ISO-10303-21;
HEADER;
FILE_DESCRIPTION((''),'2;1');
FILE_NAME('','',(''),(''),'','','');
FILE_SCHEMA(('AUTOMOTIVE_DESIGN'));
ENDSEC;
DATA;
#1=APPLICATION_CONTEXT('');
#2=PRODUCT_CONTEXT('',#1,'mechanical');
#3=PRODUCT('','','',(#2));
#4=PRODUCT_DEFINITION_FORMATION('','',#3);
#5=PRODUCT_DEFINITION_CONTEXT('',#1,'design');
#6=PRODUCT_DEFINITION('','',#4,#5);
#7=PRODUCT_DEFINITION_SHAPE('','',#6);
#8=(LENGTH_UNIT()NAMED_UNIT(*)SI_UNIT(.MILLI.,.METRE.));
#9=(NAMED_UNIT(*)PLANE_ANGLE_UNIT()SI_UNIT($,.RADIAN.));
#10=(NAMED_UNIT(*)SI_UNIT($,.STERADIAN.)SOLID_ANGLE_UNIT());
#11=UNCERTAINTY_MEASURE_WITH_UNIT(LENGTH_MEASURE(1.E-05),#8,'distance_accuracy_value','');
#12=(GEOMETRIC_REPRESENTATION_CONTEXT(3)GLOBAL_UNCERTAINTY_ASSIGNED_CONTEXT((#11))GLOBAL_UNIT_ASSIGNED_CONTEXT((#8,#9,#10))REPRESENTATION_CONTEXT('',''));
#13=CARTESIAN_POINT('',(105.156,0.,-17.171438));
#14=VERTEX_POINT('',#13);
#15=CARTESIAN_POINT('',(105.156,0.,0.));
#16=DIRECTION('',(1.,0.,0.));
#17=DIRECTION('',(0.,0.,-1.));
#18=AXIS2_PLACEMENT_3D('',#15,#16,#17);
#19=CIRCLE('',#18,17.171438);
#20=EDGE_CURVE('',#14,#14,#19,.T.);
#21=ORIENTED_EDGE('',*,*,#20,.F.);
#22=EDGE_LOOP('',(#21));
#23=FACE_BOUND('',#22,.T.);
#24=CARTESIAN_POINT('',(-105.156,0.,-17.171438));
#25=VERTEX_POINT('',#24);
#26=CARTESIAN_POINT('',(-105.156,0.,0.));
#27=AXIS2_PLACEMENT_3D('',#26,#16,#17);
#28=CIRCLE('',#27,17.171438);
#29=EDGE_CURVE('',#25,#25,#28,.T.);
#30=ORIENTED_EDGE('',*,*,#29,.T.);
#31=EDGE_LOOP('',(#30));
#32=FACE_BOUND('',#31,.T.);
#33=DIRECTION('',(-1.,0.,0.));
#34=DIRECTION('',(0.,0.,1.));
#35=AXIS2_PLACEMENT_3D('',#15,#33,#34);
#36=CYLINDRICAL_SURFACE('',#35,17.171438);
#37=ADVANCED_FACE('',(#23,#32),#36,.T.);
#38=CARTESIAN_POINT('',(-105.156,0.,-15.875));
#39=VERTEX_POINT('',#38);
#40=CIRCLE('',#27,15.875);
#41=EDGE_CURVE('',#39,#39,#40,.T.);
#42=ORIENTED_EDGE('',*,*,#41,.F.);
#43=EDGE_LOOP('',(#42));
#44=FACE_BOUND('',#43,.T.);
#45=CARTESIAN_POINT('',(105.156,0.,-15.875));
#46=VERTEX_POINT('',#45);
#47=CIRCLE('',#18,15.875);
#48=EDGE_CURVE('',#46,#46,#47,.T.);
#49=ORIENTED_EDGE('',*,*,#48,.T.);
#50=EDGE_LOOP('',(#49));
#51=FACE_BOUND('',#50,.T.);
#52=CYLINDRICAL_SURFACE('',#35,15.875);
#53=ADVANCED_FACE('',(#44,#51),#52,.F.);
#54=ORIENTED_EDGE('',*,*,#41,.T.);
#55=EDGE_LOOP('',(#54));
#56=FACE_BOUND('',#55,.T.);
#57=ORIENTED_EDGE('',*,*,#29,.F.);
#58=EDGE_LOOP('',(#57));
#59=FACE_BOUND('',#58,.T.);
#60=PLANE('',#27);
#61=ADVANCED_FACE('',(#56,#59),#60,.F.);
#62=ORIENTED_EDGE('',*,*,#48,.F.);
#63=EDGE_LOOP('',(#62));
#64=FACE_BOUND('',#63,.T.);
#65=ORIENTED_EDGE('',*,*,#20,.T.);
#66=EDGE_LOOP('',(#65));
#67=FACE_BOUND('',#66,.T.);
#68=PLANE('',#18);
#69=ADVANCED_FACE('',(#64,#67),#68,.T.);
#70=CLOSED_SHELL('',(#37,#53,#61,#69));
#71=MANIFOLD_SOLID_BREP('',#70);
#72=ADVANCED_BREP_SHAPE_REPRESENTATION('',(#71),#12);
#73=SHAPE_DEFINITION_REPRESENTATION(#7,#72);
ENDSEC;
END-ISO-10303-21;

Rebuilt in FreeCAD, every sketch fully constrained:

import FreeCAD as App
import Part
import Sketcher
from FreeCAD import Vector
Q = App.Units.Quantity

doc = App.newDocument("Part")
body = doc.addObject("PartDesign::Body", "Body")

# Sketch on YZ plane
sketch1 = body.newObject("Sketcher::SketchObject", "Sketch")
sketch1.AttachmentSupport = (doc.getObject("YZ_Plane"), [""])
sketch1.MapMode = "FlatFace"
sketch1.addGeometry([
    Part.Circle(Vector(0, 0, 0), Vector(0, 0, 1), 17.171438),
    Part.Circle(Vector(0, 0, 0), Vector(0, 0, 1), 15.875),
], False)
sketch1.addConstraint([
    Sketcher.Constraint("Coincident", 0, 3, -1, 1),
    Sketcher.Constraint("Coincident", 1, 3, -1, 1),
    Sketcher.Constraint("Diameter", 1, Q("1.25 in")),
    Sketcher.Constraint("Diameter", 0, 34.342876),
])
pad1 = body.newObject("PartDesign::Pad", "Pad")
pad1.Profile = sketch1
pad1.Length = Q("8.28 in")
pad1.Midplane = True

doc.recompute()
